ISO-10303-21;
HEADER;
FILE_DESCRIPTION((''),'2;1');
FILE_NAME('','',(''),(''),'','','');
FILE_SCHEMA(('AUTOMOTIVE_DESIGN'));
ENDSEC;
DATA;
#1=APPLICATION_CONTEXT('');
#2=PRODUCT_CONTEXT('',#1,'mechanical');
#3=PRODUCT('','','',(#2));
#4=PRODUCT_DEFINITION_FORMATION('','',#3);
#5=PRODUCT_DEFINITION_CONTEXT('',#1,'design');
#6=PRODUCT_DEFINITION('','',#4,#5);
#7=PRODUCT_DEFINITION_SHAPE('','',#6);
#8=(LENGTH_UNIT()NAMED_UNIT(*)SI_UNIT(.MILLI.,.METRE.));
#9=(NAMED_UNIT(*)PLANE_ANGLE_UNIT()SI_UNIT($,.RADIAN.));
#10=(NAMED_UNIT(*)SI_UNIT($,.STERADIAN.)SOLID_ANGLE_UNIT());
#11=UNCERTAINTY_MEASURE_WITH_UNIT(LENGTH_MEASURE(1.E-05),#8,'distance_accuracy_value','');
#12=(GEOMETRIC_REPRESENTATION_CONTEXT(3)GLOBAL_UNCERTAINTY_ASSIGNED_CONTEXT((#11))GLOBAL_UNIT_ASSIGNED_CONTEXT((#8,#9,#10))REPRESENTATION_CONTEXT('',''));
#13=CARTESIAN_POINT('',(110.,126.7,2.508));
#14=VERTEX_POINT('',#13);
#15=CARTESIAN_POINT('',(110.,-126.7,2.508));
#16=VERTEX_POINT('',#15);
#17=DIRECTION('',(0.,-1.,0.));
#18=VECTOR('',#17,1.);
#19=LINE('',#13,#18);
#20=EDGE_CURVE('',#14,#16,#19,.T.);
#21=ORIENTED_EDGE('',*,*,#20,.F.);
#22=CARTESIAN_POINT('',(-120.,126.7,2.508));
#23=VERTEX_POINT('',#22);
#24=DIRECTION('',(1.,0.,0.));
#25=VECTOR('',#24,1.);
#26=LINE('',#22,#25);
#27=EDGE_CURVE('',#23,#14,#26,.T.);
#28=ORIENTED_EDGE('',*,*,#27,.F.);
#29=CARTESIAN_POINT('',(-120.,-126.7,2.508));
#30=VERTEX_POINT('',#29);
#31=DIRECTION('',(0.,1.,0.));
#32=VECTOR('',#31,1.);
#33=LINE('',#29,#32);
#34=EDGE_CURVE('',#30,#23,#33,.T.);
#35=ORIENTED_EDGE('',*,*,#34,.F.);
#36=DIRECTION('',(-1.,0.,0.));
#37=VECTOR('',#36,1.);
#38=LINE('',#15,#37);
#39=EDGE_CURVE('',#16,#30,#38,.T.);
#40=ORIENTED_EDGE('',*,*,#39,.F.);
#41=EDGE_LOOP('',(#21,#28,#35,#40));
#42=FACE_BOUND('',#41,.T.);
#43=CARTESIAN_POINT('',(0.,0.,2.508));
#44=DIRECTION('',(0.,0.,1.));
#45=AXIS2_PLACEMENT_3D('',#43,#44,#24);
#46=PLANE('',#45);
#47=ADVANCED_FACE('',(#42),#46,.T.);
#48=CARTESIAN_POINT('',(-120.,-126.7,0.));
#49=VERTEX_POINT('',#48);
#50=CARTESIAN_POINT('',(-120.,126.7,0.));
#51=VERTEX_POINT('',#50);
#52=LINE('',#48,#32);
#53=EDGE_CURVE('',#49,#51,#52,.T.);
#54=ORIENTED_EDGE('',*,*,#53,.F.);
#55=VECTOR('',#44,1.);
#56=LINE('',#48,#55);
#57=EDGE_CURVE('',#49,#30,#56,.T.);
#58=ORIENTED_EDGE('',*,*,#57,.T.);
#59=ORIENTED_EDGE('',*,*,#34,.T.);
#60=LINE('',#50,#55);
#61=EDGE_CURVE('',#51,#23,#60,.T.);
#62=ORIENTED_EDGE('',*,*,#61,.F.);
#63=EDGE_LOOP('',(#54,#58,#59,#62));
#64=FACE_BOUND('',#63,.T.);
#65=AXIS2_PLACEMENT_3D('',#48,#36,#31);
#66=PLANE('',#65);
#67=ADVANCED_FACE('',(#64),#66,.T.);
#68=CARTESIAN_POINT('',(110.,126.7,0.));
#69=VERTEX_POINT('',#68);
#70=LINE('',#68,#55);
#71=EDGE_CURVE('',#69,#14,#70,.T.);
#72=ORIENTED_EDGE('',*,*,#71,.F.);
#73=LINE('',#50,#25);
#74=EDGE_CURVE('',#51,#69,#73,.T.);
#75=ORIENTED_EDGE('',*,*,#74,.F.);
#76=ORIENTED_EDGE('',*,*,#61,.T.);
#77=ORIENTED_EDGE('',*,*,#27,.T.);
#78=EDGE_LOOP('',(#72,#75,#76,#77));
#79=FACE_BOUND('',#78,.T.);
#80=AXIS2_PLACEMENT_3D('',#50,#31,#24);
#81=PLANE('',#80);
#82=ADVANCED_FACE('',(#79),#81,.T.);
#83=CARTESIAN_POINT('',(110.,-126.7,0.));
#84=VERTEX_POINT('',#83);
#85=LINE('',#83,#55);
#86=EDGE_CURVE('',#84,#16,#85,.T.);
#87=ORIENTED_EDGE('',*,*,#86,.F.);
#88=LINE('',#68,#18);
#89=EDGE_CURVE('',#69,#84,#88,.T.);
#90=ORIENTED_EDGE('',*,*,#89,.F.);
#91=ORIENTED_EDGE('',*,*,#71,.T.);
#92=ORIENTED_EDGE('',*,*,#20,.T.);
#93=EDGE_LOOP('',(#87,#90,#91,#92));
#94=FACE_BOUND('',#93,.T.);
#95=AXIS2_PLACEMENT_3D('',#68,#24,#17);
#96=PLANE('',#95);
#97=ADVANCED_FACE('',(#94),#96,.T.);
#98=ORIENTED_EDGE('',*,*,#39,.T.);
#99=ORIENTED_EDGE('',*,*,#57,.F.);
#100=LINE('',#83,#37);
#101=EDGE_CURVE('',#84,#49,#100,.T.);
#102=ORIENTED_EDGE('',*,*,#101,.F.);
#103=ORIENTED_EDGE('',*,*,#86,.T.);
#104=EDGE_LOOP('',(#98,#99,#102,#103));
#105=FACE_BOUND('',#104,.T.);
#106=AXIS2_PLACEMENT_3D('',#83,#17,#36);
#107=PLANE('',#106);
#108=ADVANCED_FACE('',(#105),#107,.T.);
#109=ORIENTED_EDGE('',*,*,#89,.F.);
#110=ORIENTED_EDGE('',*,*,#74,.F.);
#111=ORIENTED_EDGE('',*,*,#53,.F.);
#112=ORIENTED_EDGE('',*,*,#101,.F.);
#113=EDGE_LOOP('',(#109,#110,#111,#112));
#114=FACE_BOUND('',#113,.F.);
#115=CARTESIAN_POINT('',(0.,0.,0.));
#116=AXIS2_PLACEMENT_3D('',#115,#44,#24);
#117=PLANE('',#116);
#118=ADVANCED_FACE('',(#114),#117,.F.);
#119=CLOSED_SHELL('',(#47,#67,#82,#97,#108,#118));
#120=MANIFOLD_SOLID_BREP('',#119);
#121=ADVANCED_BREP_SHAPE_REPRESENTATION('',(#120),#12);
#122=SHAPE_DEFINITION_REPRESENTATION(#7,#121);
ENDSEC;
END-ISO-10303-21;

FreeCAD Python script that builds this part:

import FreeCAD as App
import Part
import Sketcher
from FreeCAD import Vector

doc = App.newDocument("Part")
body = doc.addObject("PartDesign::Body", "Body")

# Sketch on XY plane
sketch1 = body.newObject("Sketcher::SketchObject", "Sketch")
sketch1.AttachmentSupport = (doc.getObject("XY_Plane"), [""])
sketch1.MapMode = "FlatFace"
sketch1.addGeometry([
    Part.LineSegment(Vector(-120, 127, 0), Vector(-120, -127, 0)),
    Part.LineSegment(Vector(-120, -127, 0), Vector(110, -127, 0)),
    Part.LineSegment(Vector(110, -127, 0), Vector(110, 127, 0)),
    Part.LineSegment(Vector(110, 127, 0), Vector(-120, 127, 0)),
], False)
sketch1.addConstraint([
    Sketcher.Constraint("Coincident", 0, 2, 1, 1),
    Sketcher.Constraint("Coincident", 1, 2, 2, 1),
    Sketcher.Constraint("Coincident", 2, 2, 3, 1),
    Sketcher.Constraint("Coincident", 3, 2, 0, 1),
    Sketcher.Constraint("Vertical", 0),
    Sketcher.Constraint("Horizontal", 1),
    Sketcher.Constraint("Vertical", 2),
    Sketcher.Constraint("Horizontal", 3),
    Sketcher.Constraint("DistanceX", 1, 1, 1, 2, 230.0),
    Sketcher.Constraint("DistanceY", 0, 2, 0, 1, 253.4),
    Sketcher.Constraint("DistanceX", 0, 2, -1, 1, 120.0),
    Sketcher.Constraint("DistanceY", 0, 2, -1, 1, 126.7),
])
pad1 = body.newObject("PartDesign::Pad", "Pad")
pad1.Profile = sketch1
pad1.Length = 2.508

doc.recompute()
